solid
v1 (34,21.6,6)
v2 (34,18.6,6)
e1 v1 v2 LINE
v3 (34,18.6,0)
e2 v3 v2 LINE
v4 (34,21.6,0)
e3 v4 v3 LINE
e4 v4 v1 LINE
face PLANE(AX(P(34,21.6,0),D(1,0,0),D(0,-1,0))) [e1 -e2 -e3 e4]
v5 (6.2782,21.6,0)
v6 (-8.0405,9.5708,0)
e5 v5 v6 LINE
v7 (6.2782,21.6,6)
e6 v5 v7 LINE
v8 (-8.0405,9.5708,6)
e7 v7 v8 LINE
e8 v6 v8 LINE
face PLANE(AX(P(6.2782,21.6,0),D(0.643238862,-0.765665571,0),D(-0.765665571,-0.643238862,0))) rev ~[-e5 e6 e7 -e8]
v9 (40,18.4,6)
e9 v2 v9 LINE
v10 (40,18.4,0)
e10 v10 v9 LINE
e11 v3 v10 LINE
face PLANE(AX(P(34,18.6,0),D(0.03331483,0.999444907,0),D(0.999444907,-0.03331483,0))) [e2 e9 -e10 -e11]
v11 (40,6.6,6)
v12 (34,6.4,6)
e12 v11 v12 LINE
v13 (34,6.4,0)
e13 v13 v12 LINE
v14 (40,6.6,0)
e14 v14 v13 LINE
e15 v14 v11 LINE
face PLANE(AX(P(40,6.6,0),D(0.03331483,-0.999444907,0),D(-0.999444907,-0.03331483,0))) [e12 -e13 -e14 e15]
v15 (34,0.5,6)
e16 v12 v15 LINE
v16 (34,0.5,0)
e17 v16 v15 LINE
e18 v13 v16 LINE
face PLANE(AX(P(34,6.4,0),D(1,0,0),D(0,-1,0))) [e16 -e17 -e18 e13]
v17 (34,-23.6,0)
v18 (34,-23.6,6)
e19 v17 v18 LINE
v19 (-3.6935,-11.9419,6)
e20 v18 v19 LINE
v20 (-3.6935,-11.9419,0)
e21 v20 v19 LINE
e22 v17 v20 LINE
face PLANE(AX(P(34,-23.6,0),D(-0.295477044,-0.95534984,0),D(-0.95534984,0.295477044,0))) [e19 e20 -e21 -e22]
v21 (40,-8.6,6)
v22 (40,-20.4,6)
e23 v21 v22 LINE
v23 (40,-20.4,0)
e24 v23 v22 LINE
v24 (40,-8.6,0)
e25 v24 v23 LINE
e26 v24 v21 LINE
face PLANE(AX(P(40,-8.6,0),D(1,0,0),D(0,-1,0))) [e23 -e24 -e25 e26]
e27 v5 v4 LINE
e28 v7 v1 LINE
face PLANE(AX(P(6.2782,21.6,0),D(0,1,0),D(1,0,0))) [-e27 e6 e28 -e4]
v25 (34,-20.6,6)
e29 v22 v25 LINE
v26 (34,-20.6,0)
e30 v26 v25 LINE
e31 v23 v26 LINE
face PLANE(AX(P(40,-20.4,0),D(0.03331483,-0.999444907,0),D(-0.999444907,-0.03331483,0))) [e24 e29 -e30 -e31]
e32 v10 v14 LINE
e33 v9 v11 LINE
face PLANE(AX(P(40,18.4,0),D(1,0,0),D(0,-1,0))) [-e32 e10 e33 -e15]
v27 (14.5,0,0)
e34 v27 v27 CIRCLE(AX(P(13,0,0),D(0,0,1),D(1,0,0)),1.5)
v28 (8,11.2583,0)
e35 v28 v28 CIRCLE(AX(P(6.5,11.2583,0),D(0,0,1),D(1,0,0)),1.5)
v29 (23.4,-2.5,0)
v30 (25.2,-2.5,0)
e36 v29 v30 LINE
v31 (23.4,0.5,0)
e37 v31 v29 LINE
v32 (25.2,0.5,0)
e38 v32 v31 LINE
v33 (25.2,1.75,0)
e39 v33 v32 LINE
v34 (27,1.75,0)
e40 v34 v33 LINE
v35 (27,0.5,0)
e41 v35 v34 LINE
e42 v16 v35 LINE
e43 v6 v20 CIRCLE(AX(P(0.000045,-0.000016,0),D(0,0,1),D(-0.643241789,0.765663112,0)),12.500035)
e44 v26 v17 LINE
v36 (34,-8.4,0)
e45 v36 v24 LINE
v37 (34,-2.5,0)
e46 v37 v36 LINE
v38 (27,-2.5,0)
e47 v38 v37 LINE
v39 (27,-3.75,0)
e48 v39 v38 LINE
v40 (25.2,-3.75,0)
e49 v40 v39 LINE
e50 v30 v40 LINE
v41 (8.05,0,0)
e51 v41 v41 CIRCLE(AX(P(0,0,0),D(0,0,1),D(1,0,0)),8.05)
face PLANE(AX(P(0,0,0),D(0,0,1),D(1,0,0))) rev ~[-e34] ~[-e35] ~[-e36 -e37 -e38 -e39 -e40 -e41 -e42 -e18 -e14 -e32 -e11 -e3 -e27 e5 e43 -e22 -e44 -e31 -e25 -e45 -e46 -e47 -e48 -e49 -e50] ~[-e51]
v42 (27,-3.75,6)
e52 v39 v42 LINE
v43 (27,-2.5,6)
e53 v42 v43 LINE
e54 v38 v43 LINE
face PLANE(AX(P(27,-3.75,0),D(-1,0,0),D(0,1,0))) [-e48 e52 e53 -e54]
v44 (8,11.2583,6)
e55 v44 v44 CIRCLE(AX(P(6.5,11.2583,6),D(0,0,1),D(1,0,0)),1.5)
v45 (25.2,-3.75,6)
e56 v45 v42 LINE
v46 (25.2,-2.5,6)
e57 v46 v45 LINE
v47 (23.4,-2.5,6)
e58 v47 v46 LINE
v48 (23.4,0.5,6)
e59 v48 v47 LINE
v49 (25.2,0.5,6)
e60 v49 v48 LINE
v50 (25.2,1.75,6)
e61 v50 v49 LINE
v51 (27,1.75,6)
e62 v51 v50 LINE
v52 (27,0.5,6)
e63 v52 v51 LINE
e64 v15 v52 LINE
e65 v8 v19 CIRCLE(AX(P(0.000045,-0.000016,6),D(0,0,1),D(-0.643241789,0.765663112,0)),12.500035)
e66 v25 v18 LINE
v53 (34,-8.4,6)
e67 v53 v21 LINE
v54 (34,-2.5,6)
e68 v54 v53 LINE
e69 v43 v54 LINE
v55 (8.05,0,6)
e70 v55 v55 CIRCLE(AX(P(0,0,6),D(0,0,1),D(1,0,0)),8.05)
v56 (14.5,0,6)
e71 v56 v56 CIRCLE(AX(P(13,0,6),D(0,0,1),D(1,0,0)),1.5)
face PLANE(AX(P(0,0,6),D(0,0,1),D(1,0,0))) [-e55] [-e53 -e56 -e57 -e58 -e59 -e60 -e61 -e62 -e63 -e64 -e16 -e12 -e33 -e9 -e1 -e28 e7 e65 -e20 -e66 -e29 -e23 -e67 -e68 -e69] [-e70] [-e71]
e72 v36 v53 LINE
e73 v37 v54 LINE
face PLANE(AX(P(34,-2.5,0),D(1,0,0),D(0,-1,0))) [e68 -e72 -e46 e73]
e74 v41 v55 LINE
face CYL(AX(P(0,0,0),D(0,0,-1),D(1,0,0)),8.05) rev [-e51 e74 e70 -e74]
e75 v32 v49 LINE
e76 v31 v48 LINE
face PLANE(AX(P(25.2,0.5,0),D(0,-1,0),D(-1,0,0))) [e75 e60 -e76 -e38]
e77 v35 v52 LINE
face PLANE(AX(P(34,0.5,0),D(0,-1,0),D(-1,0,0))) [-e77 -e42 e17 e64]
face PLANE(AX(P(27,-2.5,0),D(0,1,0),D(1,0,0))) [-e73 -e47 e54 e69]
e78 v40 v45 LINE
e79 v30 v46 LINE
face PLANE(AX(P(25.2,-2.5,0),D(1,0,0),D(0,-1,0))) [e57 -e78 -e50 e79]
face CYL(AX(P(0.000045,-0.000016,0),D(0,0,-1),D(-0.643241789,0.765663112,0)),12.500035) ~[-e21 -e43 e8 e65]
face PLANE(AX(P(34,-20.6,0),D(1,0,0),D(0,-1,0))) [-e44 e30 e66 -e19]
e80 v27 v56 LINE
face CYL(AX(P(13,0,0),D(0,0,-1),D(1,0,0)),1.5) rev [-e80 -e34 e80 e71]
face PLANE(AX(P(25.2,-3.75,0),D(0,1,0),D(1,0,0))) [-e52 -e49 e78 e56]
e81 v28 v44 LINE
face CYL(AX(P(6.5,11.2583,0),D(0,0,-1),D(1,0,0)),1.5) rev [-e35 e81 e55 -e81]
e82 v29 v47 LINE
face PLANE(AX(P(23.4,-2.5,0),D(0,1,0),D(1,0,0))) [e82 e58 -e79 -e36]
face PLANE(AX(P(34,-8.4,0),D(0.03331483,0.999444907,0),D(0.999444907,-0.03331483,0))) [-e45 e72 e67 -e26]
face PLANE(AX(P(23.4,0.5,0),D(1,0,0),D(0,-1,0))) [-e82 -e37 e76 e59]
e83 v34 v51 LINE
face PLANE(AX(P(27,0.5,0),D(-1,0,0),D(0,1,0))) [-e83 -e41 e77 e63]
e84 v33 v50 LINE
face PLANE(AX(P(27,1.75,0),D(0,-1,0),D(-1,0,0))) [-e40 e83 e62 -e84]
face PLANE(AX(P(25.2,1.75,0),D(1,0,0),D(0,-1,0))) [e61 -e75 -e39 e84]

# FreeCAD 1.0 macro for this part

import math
import FreeCAD as App
import Part
import Sketcher
Q = App.Units.Quantity

doc = App.newDocument("Part")
body = doc.addObject("PartDesign::Body", "Body")

sketch1 = body.newObject("Sketcher::SketchObject", "Sketch")
sketch1.AttachmentSupport = (doc.getObject("XY_Plane"), [""])
sketch1.MapMode = "FlatFace"
sketch1.addGeometry(Part.LineSegment(App.Vector(34, 21.6, 0), App.Vector(6.2782, 21.6, 0)), False)
sketch1.addGeometry(Part.LineSegment(App.Vector(6.2782, 21.6, 0), App.Vector(-8.0405, 9.5708, 0)), False)
sketch1.addGeometry(Part.ArcOfCircle(Part.Circle(App.Vector(0, 0, 0), App.Vector(0, 0, 1), 12.499994), math.radians(130.033867), math.radians(252.81373)), False)
sketch1.addGeometry(Part.LineSegment(App.Vector(-3.6935, -11.9419, 0), App.Vector(34, -23.6, 0)), False)
sketch1.addGeometry(Part.LineSegment(App.Vector(34, -23.6, 0), App.Vector(34, -20.6, 0)), False)
sketch1.addGeometry(Part.LineSegment(App.Vector(34, -20.6, 0), App.Vector(40, -20.4, 0)), False)
sketch1.addGeometry(Part.LineSegment(App.Vector(40, -20.4, 0), App.Vector(40, -8.6, 0)), False)
sketch1.addGeometry(Part.LineSegment(App.Vector(40, -8.6, 0), App.Vector(34, -8.4, 0)), False)
sketch1.addGeometry(Part.LineSegment(App.Vector(34, -8.4, 0), App.Vector(34, -2.5, 0)), False)
sketch1.addGeometry(Part.LineSegment(App.Vector(34, -2.5, 0), App.Vector(27, -2.5, 0)), False)
sketch1.addGeometry(Part.LineSegment(App.Vector(27, -2.5, 0), App.Vector(27, -3.75, 0)), False)
sketch1.addGeometry(Part.LineSegment(App.Vector(27, -3.75, 0), App.Vector(25.2, -3.75, 0)), False)
sketch1.addGeometry(Part.LineSegment(App.Vector(25.2, -3.75, 0), App.Vector(25.2, -2.5, 0)), False)
sketch1.addGeometry(Part.LineSegment(App.Vector(25.2, -2.5, 0), App.Vector(23.4, -2.5, 0)), False)
sketch1.addGeometry(Part.LineSegment(App.Vector(23.4, -2.5, 0), App.Vector(23.4, 0.5, 0)), False)
sketch1.addGeometry(Part.LineSegment(App.Vector(23.4, 0.5, 0), App.Vector(25.2, 0.5, 0)), False)
sketch1.addGeometry(Part.LineSegment(App.Vector(25.2, 0.5, 0), App.Vector(25.2, 1.75, 0)), False)
sketch1.addGeometry(Part.LineSegment(App.Vector(25.2, 1.75, 0), App.Vector(27, 1.75, 0)), False)
sketch1.addGeometry(Part.LineSegment(App.Vector(27, 1.75, 0), App.Vector(27, 0.5, 0)), False)
sketch1.addGeometry(Part.LineSegment(App.Vector(27, 0.5, 0), App.Vector(34, 0.5, 0)), False)
sketch1.addGeometry(Part.LineSegment(App.Vector(34, 0.5, 0), App.Vector(34, 6.4, 0)), False)
sketch1.addGeometry(Part.LineSegment(App.Vector(34, 6.4, 0), App.Vector(40, 6.6, 0)), False)
sketch1.addGeometry(Part.LineSegment(App.Vector(40, 6.6, 0), App.Vector(40, 18.4, 0)), False)
sketch1.addGeometry(Part.LineSegment(App.Vector(40, 18.4, 0), App.Vector(34, 18.6, 0)), False)
sketch1.addGeometry(Part.LineSegment(App.Vector(34, 18.6, 0), App.Vector(34, 21.6, 0)), False)
sketch1.addGeometry(Part.Circle(App.Vector(0, 0, 0), App.Vector(0, 0, 1), 8.05), False)
sketch1.addGeometry(Part.Circle(App.Vector(13, 0, 0), App.Vector(0, 0, 1), 1.5), False)
sketch1.addGeometry(Part.Circle(App.Vector(6.5, 11.2583, 0), App.Vector(0, 0, 1), 1.5), False)
sketch1.addConstraint(Sketcher.Constraint("Coincident", 0, 2, 1, 1))
sketch1.addConstraint(Sketcher.Constraint("Tangent", 1, 2, 2, 1))
sketch1.addConstraint(Sketcher.Constraint("Tangent", 2, 2, 3, 1))
sketch1.addConstraint(Sketcher.Constraint("Coincident", 3, 2, 4, 1))
sketch1.addConstraint(Sketcher.Constraint("Coincident", 4, 2, 5, 1))
sketch1.addConstraint(Sketcher.Constraint("Coincident", 5, 2, 6, 1))
sketch1.addConstraint(Sketcher.Constraint("Coincident", 6, 2, 7, 1))
sketch1.addConstraint(Sketcher.Constraint("Coincident", 7, 2, 8, 1))
sketch1.addConstraint(Sketcher.Constraint("Coincident", 8, 2, 9, 1))
sketch1.addConstraint(Sketcher.Constraint("Coincident", 9, 2, 10, 1))
sketch1.addConstraint(Sketcher.Constraint("Coincident", 10, 2, 11, 1))
sketch1.addConstraint(Sketcher.Constraint("Coincident", 11, 2, 12, 1))
sketch1.addConstraint(Sketcher.Constraint("Coincident", 12, 2, 13, 1))
sketch1.addConstraint(Sketcher.Constraint("Coincident", 13, 2, 14, 1))
sketch1.addConstraint(Sketcher.Constraint("Coincident", 14, 2, 15, 1))
sketch1.addConstraint(Sketcher.Constraint("Coincident", 15, 2, 16, 1))
sketch1.addConstraint(Sketcher.Constraint("Coincident", 16, 2, 17, 1))
sketch1.addConstraint(Sketcher.Constraint("Coincident", 17, 2, 18, 1))
sketch1.addConstraint(Sketcher.Constraint("Coincident", 18, 2, 19, 1))
sketch1.addConstraint(Sketcher.Constraint("Coincident", 19, 2, 20, 1))
sketch1.addConstraint(Sketcher.Constraint("Coincident", 20, 2, 21, 1))
sketch1.addConstraint(Sketcher.Constraint("Coincident", 21, 2, 22, 1))
sketch1.addConstraint(Sketcher.Constraint("Coincident", 22, 2, 23, 1))
sketch1.addConstraint(Sketcher.Constraint("Coincident", 23, 2, 24, 1))
sketch1.addConstraint(Sketcher.Constraint("Coincident", 24, 2, 0, 1))
sketch1.addConstraint(Sketcher.Constraint("Horizontal", 0))
sketch1.addConstraint(Sketcher.Constraint("Vertical", 4))
sketch1.addConstraint(Sketcher.Constraint("Vertical", 6))
sketch1.addConstraint(Sketcher.Constraint("Vertical", 8))
sketch1.addConstraint(Sketcher.Constraint("Horizontal", 9))
sketch1.addConstraint(Sketcher.Constraint("Vertical", 10))
sketch1.addConstraint(Sketcher.Constraint("Horizontal", 11))
sketch1.addConstraint(Sketcher.Constraint("Vertical", 12))
sketch1.addConstraint(Sketcher.Constraint("Horizontal", 13))
sketch1.addConstraint(Sketcher.Constraint("Vertical", 14))
sketch1.addConstraint(Sketcher.Constraint("Horizontal", 15))
sketch1.addConstraint(Sketcher.Constraint("Vertical", 16))
sketch1.addConstraint(Sketcher.Constraint("Horizontal", 17))
sketch1.addConstraint(Sketcher.Constraint("Vertical", 18))
sketch1.addConstraint(Sketcher.Constraint("Horizontal", 19))
sketch1.addConstraint(Sketcher.Constraint("Vertical", 20))
sketch1.addConstraint(Sketcher.Constraint("Vertical", 22))
sketch1.addConstraint(Sketcher.Constraint("Vertical", 24))
sketch1.addConstraint(Sketcher.Constraint("Coincident", 2, 3, -1, 1))
sketch1.addConstraint(Sketcher.Constraint("Coincident", 25, 3, -1, 1))
sketch1.addConstraint(Sketcher.Constraint("Equal", 26, 27))
sketch1.addConstraint(Sketcher.Constraint("PointOnObject", 26, 3, -1))
sketch1.addConstraint(Sketcher.Constraint("Parallel", 5, 21))
sketch1.addConstraint(Sketcher.Constraint("Parallel", 7, 23))
sketch1.addConstraint(Sketcher.Constraint("Horizontal", 9, 2, 12, 2))
sketch1.addConstraint(Sketcher.Constraint("Horizontal", 15, 2, 18, 2))
sketch1.addConstraint(Sketcher.Constraint("Vertical", 4, 2, 7, 2))
sketch1.addConstraint(Sketcher.Constraint("Vertical", 12, 2, 15, 2))
sketch1.addConstraint(Sketcher.Constraint("Vertical", 10, 2, 17, 2))
sketch1.addConstraint(Sketcher.Constraint("Vertical", 8, 2, 19, 2))
sketch1.addConstraint(Sketcher.Constraint("Vertical", 6, 2, 21, 2))
sketch1.addConstraint(Sketcher.Constraint("Vertical", 20, 2, 23, 2))
sketch1.addConstraint(Sketcher.Constraint("Equal", 11, 13))
sketch1.addConstraint(Sketcher.Constraint("Equal", 4, 14))
sketch1.addConstraint(Sketcher.Constraint("Equal", 12, 16))
sketch1.addConstraint(Sketcher.Constraint("Equal", 8, 20))
sketch1.addConstraint(Sketcher.Constraint("Equal", 6, 22))
sketch1.addConstraint(Sketcher.Constraint("Equal", 14, 24))
sketch1.addConstraint(Sketcher.Constraint("Equal", 5, 7))
sketch1.addConstraint(Sketcher.Constraint("Diameter", 26, Q("3 mm")))
sketch1.addConstraint(Sketcher.Constraint("Diameter", 25, Q("16.1 mm")))
sketch1.addConstraint(Sketcher.Constraint("Radius", 2, Q("12.5 mm")))
sketch1.addConstraint(Sketcher.Constraint("DistanceX", 9, 2, 9, 1, Q("7 mm")))
sketch1.addConstraint(Sketcher.Constraint("DistanceY", 4, 1, 4, 2, Q("3 mm")))
sketch1.addConstraint(Sketcher.Constraint("DistanceX", 11, 2, 11, 1, Q("1.8 mm")))
sketch1.addConstraint(Sketcher.Constraint("DistanceY", 6, 1, 6, 2, Q("11.8 mm")))
sketch1.addConstraint(Sketcher.Constraint("DistanceY", 8, 1, 8, 2, Q("5.9 mm")))
sketch1.addConstraint(Sketcher.Constraint("DistanceX", -1, 1, 26, 3, Q("13 mm")))
sketch1.addConstraint(Sketcher.Constraint("DistanceX", -1, 1, 3, 2, Q("34 mm")))
sketch1.addConstraint(Sketcher.Constraint("DistanceX", 4, 2, 5, 2, Q("6 mm")))
sketch1.addConstraint(Sketcher.Constraint("DistanceY", 10, 2, 10, 1, Q("1.25 mm")))
sketch1.addConstraint(Sketcher.Constraint("DistanceY", -1, 1, 0, 2, Q("21.6 mm")))
sketch1.addConstraint(Sketcher.Constraint("DistanceY", 4, 2, 5, 2, Q("0.2 mm")))
sketch1.addConstraint(Sketcher.Constraint("DistanceX", -1, 1, 27, 3, Q("6.5 mm")))
sketch1.addConstraint(Sketcher.Constraint("Distance", 1, Q("18.701 mm")))
sketch1.addConstraint(Sketcher.Constraint("DistanceY", -1, 1, 27, 3, Q("11.2583 mm")))
pad1 = body.newObject("PartDesign::Pad", "Pad")
pad1.Profile = sketch1
pad1.Length = 6

doc.recompute()
